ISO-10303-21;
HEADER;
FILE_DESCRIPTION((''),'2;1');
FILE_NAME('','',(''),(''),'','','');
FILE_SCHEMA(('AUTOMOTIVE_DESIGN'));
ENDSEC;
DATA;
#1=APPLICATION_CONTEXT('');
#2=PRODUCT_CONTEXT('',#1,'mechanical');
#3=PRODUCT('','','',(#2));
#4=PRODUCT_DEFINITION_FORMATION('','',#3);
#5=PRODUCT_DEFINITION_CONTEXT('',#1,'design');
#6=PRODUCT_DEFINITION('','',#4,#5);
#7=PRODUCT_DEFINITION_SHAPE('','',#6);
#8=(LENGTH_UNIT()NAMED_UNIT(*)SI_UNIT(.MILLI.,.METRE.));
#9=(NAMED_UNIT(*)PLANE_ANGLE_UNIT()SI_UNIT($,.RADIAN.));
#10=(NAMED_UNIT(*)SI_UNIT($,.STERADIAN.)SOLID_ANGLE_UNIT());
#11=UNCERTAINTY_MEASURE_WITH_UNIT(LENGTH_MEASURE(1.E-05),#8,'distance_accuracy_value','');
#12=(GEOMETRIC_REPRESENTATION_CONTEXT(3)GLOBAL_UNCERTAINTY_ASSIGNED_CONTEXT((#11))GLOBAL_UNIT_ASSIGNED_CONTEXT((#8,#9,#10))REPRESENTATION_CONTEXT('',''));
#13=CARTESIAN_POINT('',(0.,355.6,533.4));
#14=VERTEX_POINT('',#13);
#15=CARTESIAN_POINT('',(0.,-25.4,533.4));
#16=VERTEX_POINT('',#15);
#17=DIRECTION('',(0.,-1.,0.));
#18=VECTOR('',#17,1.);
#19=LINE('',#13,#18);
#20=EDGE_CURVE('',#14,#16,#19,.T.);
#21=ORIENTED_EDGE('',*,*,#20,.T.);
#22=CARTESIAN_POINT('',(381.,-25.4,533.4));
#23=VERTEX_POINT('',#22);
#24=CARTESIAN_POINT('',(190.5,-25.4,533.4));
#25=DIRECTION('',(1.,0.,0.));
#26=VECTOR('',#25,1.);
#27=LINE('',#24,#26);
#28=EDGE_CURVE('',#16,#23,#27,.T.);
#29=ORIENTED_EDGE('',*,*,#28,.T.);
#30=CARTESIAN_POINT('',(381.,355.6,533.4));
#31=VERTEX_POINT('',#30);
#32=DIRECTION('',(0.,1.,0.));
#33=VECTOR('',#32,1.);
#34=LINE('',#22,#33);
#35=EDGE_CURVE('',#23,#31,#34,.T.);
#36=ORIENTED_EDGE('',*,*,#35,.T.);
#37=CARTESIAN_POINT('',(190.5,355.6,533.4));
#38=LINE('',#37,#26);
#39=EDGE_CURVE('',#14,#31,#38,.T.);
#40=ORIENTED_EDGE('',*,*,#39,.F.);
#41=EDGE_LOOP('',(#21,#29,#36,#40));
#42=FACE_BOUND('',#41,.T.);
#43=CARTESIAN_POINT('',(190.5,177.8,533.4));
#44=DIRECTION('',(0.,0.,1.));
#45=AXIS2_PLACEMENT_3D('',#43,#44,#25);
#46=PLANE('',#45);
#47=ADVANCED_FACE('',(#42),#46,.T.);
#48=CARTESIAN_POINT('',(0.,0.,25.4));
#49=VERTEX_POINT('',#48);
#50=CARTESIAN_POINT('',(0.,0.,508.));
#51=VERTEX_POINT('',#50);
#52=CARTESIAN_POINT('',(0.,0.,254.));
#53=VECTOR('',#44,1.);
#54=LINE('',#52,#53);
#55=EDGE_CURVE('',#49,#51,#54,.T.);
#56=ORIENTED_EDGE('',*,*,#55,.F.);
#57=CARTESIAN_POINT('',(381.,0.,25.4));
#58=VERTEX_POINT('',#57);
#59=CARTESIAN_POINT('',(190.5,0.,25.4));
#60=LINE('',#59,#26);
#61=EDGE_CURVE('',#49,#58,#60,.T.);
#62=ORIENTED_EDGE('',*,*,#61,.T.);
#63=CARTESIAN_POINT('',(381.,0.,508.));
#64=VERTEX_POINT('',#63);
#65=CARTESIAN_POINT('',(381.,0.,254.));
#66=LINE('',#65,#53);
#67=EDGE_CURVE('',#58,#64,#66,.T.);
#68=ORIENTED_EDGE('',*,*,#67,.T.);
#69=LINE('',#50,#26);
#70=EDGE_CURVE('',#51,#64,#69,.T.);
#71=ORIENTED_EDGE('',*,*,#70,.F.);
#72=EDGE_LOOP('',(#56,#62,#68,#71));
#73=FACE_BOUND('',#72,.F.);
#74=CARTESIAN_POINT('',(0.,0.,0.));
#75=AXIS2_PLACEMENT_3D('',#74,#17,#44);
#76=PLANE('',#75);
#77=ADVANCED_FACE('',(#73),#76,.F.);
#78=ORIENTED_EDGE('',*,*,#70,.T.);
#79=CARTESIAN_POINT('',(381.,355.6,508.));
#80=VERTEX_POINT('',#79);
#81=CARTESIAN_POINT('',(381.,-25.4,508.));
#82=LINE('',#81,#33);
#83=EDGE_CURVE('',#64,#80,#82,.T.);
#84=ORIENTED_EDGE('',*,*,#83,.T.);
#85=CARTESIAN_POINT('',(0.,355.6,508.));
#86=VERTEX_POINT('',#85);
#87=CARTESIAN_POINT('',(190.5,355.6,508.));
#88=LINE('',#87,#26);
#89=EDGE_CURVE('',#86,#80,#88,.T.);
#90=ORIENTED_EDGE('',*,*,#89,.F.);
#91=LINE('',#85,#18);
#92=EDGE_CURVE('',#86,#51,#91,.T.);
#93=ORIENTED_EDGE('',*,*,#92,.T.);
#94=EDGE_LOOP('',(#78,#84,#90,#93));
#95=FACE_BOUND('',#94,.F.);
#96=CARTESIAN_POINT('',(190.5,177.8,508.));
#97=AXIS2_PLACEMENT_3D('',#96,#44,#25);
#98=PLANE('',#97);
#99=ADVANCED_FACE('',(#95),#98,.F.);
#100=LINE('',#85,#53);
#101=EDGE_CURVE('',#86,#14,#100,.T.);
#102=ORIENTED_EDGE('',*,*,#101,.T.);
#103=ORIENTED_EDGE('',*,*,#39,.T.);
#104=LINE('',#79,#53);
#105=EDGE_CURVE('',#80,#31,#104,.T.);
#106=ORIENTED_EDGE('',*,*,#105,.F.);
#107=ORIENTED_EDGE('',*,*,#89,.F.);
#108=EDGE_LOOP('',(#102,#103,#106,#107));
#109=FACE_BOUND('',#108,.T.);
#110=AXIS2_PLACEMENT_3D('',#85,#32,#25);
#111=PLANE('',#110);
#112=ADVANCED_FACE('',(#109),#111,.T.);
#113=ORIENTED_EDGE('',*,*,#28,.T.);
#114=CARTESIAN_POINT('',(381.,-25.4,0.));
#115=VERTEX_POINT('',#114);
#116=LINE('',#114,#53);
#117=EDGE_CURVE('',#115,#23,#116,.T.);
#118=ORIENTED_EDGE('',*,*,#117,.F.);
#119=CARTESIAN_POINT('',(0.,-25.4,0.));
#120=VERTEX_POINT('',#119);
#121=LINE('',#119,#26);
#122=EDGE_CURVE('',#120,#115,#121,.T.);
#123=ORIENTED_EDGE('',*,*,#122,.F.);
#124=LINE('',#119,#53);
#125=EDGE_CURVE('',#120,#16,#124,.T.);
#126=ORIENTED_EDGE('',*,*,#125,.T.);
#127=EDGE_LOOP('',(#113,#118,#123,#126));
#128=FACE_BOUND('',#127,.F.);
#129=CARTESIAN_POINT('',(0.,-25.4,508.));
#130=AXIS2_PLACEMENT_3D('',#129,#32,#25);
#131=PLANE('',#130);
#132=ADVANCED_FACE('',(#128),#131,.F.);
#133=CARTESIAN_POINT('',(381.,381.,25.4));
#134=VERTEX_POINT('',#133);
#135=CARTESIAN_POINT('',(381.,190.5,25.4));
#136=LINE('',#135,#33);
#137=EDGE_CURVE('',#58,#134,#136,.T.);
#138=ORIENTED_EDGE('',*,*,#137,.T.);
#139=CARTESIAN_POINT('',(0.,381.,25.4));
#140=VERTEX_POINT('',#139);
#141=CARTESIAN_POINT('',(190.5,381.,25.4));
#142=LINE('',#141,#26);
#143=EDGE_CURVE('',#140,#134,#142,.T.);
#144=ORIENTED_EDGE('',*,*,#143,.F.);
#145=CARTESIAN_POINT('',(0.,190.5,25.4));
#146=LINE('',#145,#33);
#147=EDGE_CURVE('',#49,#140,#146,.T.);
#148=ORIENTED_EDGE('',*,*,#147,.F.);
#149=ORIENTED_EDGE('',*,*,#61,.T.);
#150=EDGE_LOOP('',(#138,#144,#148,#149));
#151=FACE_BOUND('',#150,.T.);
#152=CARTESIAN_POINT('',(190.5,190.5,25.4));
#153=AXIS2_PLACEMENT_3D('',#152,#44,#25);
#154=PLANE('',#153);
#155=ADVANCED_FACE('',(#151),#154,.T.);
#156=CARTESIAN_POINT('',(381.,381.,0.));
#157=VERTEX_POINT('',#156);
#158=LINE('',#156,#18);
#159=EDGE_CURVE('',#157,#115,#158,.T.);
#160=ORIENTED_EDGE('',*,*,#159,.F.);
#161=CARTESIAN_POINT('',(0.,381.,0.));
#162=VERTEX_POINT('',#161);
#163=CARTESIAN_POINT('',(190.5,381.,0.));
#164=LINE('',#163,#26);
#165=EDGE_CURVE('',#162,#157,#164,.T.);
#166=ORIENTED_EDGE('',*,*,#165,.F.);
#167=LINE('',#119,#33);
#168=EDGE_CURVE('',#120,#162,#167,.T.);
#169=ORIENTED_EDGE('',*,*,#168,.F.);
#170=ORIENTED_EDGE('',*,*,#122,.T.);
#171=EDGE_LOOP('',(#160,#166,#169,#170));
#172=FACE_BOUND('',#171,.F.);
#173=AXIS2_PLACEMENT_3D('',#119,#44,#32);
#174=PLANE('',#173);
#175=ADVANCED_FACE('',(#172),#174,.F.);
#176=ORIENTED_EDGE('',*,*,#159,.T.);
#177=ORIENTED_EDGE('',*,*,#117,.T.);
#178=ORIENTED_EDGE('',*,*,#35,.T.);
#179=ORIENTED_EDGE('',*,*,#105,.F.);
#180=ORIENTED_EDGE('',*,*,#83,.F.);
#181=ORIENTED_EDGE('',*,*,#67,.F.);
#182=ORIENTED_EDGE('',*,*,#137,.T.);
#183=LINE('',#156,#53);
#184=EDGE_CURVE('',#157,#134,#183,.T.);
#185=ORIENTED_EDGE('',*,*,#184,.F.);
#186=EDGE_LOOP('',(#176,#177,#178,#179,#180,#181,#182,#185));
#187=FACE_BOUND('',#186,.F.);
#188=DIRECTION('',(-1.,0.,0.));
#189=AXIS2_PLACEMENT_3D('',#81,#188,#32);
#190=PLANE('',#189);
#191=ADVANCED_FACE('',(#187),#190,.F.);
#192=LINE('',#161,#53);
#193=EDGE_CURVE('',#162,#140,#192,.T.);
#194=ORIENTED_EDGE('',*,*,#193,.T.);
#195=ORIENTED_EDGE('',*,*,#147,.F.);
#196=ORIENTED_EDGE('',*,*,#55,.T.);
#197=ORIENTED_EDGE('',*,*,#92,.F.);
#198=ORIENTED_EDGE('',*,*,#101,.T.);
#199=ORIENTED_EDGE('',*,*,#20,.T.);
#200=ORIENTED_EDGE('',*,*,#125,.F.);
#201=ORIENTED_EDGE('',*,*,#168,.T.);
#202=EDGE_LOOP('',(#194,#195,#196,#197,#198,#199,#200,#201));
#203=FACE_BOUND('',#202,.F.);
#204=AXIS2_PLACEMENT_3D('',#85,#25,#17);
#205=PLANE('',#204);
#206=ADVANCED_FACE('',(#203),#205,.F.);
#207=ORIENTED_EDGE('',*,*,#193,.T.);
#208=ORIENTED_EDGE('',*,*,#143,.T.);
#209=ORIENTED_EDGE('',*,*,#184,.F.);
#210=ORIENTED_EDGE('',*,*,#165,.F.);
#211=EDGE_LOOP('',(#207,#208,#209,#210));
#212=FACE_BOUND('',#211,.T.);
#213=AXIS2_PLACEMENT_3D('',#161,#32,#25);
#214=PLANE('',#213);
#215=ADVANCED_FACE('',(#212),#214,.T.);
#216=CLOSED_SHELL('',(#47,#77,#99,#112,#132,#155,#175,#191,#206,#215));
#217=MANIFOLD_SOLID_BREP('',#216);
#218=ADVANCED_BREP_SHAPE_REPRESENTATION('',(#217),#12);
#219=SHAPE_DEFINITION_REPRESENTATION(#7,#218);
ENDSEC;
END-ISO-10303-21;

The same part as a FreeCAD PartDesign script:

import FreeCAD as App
import Part
import Sketcher
Q = App.Units.Quantity


def add_polygon(sketch, points):
    """Adds a closed chain of lines whose ends are joined by coincident constraints."""
    first, n = sketch.GeometryCount, len(points)
    for a, b in zip(points, points[1:] + points[:1]):
        sketch.addGeometry(Part.LineSegment(App.Vector(*a, 0), App.Vector(*b, 0)), False)
    for i in range(n):
        sketch.addConstraint(Sketcher.Constraint("Coincident", first + i, 2, first + (i + 1) % n, 1))

doc = App.newDocument("Part")
body = doc.addObject("PartDesign::Body", "Body")

# Sketch on XY plane
sketch1 = body.newObject("Sketcher::SketchObject", "Sketch")
sketch1.AttachmentSupport = (doc.getObject("XY_Plane"), [""])
sketch1.MapMode = "FlatFace"
add_polygon(sketch1, [(0, 381), (0, 0), (381, 0), (381, 381)])  # lines 0-3
sketch1.addConstraint([
    Sketcher.Constraint("Vertical", 0),
    Sketcher.Constraint("Horizontal", 1),
    Sketcher.Constraint("Vertical", 2),
    Sketcher.Constraint("Horizontal", 3),
    Sketcher.Constraint("Coincident", 0, 2, -1, 1),
    Sketcher.Constraint("Equal", 3, 0),
    Sketcher.Constraint("DistanceX", 1, 1, 1, 2, Q("15 in")),
])
pad1 = body.newObject("PartDesign::Pad", "Pad")
pad1.Profile = sketch1
pad1.Length = Q("1 in")

# Sketch on YZ plane
sketch2 = body.newObject("Sketcher::SketchObject", "Sketch001")
sketch2.AttachmentSupport = (doc.getObject("YZ_Plane"), [""])
sketch2.MapMode = "FlatFace"
add_polygon(sketch2, [(-25.4, 508), (-25.4, 0), (0, 0), (0, 508)])  # lines 0-3
sketch2.addConstraint([
    Sketcher.Constraint("Vertical", 0),
    Sketcher.Constraint("Horizontal", 1),
    Sketcher.Constraint("Vertical", 2),
    Sketcher.Constraint("Horizontal", 3),
    Sketcher.Constraint("Coincident", 1, 2, -1, 1),
    Sketcher.Constraint("DistanceX", 1, 1, 1, 2, Q("1 in")),
    Sketcher.Constraint("DistanceY", 0, 2, 0, 1, Q("20 in")),
])
pad2 = body.newObject("PartDesign::Pad", "Pad001")
pad2.Profile = sketch2
pad2.Length = Q("15 in")

# Sketch on XY plane
sketch3 = body.newObject("Sketcher::SketchObject", "Sketch002")
sketch3.AttachmentSupport = (doc.getObject("XY_Plane"), [""])
sketch3.MapMode = "FlatFace"
sketch3.AttachmentOffset = App.Placement(App.Vector(0, 0, 20 * 25.4), App.Rotation())
add_polygon(sketch3, [(0, 355.6), (0, -25.4), (381, -25.4), (381, 355.6)])  # lines 0-3
sketch3.addConstraint([
    Sketcher.Constraint("Vertical", 0),
    Sketcher.Constraint("Horizontal", 1),
    Sketcher.Constraint("Vertical", 2),
    Sketcher.Constraint("Horizontal", 3),
    Sketcher.Constraint("PointOnObject", 0, 2, -2),
    Sketcher.Constraint("Equal", 3, 0),
    Sketcher.Constraint("DistanceX", 1, 1, 1, 2, Q("15 in")),
    Sketcher.Constraint("DistanceY", 0, 2, -1, 1, Q("1 in")),
])
pad3 = body.newObject("PartDesign::Pad", "Pad002")
pad3.Profile = sketch3
pad3.Length = Q("1 in")

doc.recompute()
